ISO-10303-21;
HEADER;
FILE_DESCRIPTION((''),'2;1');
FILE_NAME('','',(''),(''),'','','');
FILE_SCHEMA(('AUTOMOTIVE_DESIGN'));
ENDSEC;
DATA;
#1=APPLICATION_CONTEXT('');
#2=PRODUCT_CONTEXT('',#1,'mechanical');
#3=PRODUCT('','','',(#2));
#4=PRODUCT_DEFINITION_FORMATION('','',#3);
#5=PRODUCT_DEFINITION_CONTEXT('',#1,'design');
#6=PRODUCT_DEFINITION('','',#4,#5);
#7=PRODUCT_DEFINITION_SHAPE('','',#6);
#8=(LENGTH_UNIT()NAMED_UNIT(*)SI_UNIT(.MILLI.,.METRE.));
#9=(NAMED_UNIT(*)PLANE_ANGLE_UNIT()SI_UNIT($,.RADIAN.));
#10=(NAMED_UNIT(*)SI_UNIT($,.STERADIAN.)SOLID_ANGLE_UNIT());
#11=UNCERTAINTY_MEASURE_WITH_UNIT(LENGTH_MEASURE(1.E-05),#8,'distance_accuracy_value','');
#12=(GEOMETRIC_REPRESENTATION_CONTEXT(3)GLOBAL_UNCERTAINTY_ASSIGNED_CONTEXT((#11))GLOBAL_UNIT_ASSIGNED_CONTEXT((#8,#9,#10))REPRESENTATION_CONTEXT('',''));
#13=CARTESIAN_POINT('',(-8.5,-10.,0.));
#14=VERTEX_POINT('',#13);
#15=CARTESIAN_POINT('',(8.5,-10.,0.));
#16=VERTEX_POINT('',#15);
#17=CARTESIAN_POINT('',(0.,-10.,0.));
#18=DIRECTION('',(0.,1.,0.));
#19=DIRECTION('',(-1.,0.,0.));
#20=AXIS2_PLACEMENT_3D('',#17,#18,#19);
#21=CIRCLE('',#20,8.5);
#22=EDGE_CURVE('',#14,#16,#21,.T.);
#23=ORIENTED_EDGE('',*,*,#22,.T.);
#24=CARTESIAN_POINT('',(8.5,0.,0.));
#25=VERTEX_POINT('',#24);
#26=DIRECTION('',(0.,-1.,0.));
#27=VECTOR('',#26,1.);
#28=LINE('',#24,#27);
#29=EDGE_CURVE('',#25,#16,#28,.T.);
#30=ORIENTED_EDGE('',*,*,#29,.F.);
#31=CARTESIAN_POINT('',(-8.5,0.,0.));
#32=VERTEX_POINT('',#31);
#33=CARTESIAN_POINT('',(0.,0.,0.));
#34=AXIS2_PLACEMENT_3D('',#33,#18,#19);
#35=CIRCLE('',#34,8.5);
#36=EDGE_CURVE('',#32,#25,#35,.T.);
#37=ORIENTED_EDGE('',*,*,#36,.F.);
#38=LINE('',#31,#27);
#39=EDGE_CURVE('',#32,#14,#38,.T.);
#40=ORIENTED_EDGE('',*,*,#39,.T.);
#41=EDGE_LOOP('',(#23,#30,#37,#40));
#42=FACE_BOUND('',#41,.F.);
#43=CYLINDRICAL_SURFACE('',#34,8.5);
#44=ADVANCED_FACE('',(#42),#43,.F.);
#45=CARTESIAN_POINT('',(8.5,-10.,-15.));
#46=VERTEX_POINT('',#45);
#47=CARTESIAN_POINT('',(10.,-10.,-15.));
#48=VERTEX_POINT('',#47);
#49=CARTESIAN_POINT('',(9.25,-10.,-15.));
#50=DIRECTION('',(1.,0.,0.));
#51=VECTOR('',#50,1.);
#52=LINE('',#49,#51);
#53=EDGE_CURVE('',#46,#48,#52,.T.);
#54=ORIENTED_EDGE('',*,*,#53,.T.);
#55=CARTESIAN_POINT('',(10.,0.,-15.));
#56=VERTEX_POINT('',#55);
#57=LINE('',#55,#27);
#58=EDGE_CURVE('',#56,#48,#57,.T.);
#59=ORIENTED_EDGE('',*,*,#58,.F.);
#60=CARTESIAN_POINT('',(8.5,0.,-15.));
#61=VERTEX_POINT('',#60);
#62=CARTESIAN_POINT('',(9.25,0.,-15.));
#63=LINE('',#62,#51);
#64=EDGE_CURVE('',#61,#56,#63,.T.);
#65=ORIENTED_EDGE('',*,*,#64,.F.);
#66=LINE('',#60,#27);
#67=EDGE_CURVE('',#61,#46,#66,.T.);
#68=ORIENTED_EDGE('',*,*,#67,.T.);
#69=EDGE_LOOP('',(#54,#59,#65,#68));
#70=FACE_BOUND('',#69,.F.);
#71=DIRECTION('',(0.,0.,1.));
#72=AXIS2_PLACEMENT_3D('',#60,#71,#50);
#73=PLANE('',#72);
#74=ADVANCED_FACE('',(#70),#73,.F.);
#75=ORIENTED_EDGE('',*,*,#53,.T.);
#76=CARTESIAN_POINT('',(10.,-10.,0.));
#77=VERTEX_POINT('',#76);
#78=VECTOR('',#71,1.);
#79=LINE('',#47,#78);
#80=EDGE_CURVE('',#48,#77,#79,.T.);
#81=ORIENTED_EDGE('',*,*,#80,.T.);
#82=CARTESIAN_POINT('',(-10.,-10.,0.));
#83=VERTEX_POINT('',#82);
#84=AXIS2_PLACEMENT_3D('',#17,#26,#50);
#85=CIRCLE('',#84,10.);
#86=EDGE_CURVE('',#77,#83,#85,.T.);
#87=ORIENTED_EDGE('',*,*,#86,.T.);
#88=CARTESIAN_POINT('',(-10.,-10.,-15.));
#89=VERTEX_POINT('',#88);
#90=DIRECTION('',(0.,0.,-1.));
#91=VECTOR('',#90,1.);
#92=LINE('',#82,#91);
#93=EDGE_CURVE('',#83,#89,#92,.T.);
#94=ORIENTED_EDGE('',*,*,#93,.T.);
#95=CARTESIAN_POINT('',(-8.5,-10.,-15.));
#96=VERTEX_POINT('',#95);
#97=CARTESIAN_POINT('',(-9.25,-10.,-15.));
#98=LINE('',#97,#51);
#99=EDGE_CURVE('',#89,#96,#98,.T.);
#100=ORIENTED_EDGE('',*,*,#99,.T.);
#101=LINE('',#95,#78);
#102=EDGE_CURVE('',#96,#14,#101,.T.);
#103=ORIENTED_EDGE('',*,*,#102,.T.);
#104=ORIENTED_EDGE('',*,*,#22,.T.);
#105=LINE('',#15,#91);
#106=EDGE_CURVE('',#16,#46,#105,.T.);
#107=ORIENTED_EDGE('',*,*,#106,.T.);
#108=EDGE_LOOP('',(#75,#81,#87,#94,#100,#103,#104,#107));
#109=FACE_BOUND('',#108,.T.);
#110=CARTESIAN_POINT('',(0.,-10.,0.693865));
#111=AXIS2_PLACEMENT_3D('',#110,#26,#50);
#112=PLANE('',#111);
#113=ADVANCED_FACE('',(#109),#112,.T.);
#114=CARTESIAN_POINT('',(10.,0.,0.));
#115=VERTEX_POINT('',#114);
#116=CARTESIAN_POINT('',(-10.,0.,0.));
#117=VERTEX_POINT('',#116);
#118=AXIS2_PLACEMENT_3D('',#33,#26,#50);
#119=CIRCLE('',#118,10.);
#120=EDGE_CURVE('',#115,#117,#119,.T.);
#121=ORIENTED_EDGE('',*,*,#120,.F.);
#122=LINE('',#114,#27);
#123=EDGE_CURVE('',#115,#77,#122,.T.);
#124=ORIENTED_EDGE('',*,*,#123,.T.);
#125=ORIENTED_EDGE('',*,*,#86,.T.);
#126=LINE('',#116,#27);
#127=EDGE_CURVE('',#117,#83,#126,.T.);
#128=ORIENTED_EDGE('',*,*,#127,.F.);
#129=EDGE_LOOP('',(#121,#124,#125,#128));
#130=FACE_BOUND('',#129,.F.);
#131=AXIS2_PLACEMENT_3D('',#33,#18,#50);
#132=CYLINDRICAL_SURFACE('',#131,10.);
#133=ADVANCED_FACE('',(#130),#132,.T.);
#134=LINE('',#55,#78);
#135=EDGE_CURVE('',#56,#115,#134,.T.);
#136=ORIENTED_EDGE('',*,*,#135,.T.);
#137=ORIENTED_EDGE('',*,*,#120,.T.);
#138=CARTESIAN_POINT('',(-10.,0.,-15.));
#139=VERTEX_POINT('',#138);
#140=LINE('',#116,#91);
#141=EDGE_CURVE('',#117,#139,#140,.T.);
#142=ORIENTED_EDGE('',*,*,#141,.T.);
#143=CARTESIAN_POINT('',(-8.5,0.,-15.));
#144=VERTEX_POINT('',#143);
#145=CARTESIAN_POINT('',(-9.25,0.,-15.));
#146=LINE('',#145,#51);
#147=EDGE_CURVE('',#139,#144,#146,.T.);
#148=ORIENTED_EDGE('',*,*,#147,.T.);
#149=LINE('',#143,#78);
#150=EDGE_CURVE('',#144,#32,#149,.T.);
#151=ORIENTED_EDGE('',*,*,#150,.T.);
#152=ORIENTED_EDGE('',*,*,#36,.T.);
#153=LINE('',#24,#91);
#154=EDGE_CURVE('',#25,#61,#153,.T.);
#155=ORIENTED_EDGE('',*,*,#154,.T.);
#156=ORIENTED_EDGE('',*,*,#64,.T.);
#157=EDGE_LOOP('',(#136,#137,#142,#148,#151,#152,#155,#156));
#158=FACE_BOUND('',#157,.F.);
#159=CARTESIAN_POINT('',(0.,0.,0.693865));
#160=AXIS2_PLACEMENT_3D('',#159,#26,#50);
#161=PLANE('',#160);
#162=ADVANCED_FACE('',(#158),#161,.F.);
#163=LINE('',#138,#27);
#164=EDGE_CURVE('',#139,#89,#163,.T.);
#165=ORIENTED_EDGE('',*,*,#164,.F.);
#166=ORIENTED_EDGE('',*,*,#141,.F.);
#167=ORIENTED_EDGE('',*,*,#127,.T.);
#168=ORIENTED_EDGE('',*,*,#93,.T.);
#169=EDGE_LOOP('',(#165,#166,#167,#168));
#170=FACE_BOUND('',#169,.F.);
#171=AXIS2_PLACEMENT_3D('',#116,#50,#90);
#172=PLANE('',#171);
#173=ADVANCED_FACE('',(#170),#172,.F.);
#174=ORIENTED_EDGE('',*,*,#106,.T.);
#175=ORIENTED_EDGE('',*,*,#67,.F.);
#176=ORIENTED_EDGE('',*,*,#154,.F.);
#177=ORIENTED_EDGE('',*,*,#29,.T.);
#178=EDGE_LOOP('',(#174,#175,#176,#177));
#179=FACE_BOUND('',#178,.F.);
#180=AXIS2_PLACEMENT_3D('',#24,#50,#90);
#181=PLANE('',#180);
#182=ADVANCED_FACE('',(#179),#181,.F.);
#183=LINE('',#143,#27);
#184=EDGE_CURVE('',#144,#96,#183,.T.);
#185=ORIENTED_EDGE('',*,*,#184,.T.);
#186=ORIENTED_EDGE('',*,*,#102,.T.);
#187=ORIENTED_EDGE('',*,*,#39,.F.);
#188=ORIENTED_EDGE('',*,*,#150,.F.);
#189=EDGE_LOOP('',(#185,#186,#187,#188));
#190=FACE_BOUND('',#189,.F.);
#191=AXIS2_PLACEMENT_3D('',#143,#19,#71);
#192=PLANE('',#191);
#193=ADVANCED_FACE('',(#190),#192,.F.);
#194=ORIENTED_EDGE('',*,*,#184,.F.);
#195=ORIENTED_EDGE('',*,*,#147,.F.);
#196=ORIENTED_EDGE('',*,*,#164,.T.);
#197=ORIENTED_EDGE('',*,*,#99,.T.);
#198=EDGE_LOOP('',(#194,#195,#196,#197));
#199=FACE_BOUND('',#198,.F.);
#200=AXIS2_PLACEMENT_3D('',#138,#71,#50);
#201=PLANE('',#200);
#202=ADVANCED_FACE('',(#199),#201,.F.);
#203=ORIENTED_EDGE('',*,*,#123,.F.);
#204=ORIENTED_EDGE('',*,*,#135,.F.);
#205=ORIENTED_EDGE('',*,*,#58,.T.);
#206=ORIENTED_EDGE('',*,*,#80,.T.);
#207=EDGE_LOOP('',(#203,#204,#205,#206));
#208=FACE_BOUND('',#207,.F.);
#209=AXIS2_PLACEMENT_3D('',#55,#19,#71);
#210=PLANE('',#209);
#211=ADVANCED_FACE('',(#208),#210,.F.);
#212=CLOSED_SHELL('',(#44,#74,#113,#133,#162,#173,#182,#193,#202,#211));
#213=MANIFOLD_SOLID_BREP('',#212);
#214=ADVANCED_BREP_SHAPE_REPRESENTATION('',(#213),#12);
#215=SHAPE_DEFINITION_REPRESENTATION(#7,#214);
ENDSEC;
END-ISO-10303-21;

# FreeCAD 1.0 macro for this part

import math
import FreeCAD as App
import Part
import Sketcher

V = App.Vector

doc = App.newDocument("Part")
body = doc.addObject("PartDesign::Body", "Body")

# Sketch on XZ plane
sketch1 = doc.addObject("Sketcher::SketchObject", "Sketch")
body.addObject(sketch1)
sketch1.AttachmentSupport = (doc.XZ_Plane, [""])
sketch1.MapMode = "FlatFace"
sketch1.addGeometry([
    Part.ArcOfCircle(Part.Circle(V(0, 0, 0), V(0, 0, 1), 10), math.radians(0), math.radians(180)),  # 0
    Part.LineSegment(V(-10, 0, 0), V(-10, -15, 0)),  # 1
    Part.LineSegment(V(-10, -15, 0), V(-8.5, -15, 0)),  # 2
    Part.LineSegment(V(-8.5, -15, 0), V(-8.5, 0, 0)),  # 3
    Part.ArcOfCircle(Part.Circle(V(0, 0, 0), V(0, 0, 1), 8.5), math.radians(0), math.radians(180)),  # 4
    Part.LineSegment(V(8.5, 0, 0), V(8.5, -15, 0)),  # 5
    Part.LineSegment(V(8.5, -15, 0), V(10, -15, 0)),  # 6
    Part.LineSegment(V(10, -15, 0), V(10, 0, 0)),  # 7
], False)
sketch1.addConstraint([
    Sketcher.Constraint("Tangent", 0, 2, 1, 1),
    Sketcher.Constraint("Coincident", 1, 2, 2, 1),
    Sketcher.Constraint("Coincident", 2, 2, 3, 1),
    Sketcher.Constraint("Tangent", 3, 2, 4, 2),
    Sketcher.Constraint("Tangent", 4, 1, 5, 1),
    Sketcher.Constraint("Coincident", 5, 2, 6, 1),
    Sketcher.Constraint("Coincident", 6, 2, 7, 1),
    Sketcher.Constraint("Tangent", 7, 2, 0, 1),
    Sketcher.Constraint("Vertical", 1),
    Sketcher.Constraint("Horizontal", 2),
    Sketcher.Constraint("Vertical", 3),
    Sketcher.Constraint("Vertical", 5),
    Sketcher.Constraint("Horizontal", 6),
    Sketcher.Constraint("Vertical", 7),
    Sketcher.Constraint("Coincident", 0, 3, -1, 1),
    Sketcher.Constraint("Coincident", 4, 3, -1, 1),
    Sketcher.Constraint("Horizontal", 2, 2, 5, 2),
    Sketcher.Constraint("Radius", 0, 10.0),
    Sketcher.Constraint("Radius", 4, 8.5),
    Sketcher.Constraint("DistanceY", 1, 2, 1, 1, 15.0),
])
pad1 = doc.addObject("PartDesign::Pad", "Pad")
body.addObject(pad1)
pad1.Profile = sketch1
pad1.Length = 10

doc.recompute()
